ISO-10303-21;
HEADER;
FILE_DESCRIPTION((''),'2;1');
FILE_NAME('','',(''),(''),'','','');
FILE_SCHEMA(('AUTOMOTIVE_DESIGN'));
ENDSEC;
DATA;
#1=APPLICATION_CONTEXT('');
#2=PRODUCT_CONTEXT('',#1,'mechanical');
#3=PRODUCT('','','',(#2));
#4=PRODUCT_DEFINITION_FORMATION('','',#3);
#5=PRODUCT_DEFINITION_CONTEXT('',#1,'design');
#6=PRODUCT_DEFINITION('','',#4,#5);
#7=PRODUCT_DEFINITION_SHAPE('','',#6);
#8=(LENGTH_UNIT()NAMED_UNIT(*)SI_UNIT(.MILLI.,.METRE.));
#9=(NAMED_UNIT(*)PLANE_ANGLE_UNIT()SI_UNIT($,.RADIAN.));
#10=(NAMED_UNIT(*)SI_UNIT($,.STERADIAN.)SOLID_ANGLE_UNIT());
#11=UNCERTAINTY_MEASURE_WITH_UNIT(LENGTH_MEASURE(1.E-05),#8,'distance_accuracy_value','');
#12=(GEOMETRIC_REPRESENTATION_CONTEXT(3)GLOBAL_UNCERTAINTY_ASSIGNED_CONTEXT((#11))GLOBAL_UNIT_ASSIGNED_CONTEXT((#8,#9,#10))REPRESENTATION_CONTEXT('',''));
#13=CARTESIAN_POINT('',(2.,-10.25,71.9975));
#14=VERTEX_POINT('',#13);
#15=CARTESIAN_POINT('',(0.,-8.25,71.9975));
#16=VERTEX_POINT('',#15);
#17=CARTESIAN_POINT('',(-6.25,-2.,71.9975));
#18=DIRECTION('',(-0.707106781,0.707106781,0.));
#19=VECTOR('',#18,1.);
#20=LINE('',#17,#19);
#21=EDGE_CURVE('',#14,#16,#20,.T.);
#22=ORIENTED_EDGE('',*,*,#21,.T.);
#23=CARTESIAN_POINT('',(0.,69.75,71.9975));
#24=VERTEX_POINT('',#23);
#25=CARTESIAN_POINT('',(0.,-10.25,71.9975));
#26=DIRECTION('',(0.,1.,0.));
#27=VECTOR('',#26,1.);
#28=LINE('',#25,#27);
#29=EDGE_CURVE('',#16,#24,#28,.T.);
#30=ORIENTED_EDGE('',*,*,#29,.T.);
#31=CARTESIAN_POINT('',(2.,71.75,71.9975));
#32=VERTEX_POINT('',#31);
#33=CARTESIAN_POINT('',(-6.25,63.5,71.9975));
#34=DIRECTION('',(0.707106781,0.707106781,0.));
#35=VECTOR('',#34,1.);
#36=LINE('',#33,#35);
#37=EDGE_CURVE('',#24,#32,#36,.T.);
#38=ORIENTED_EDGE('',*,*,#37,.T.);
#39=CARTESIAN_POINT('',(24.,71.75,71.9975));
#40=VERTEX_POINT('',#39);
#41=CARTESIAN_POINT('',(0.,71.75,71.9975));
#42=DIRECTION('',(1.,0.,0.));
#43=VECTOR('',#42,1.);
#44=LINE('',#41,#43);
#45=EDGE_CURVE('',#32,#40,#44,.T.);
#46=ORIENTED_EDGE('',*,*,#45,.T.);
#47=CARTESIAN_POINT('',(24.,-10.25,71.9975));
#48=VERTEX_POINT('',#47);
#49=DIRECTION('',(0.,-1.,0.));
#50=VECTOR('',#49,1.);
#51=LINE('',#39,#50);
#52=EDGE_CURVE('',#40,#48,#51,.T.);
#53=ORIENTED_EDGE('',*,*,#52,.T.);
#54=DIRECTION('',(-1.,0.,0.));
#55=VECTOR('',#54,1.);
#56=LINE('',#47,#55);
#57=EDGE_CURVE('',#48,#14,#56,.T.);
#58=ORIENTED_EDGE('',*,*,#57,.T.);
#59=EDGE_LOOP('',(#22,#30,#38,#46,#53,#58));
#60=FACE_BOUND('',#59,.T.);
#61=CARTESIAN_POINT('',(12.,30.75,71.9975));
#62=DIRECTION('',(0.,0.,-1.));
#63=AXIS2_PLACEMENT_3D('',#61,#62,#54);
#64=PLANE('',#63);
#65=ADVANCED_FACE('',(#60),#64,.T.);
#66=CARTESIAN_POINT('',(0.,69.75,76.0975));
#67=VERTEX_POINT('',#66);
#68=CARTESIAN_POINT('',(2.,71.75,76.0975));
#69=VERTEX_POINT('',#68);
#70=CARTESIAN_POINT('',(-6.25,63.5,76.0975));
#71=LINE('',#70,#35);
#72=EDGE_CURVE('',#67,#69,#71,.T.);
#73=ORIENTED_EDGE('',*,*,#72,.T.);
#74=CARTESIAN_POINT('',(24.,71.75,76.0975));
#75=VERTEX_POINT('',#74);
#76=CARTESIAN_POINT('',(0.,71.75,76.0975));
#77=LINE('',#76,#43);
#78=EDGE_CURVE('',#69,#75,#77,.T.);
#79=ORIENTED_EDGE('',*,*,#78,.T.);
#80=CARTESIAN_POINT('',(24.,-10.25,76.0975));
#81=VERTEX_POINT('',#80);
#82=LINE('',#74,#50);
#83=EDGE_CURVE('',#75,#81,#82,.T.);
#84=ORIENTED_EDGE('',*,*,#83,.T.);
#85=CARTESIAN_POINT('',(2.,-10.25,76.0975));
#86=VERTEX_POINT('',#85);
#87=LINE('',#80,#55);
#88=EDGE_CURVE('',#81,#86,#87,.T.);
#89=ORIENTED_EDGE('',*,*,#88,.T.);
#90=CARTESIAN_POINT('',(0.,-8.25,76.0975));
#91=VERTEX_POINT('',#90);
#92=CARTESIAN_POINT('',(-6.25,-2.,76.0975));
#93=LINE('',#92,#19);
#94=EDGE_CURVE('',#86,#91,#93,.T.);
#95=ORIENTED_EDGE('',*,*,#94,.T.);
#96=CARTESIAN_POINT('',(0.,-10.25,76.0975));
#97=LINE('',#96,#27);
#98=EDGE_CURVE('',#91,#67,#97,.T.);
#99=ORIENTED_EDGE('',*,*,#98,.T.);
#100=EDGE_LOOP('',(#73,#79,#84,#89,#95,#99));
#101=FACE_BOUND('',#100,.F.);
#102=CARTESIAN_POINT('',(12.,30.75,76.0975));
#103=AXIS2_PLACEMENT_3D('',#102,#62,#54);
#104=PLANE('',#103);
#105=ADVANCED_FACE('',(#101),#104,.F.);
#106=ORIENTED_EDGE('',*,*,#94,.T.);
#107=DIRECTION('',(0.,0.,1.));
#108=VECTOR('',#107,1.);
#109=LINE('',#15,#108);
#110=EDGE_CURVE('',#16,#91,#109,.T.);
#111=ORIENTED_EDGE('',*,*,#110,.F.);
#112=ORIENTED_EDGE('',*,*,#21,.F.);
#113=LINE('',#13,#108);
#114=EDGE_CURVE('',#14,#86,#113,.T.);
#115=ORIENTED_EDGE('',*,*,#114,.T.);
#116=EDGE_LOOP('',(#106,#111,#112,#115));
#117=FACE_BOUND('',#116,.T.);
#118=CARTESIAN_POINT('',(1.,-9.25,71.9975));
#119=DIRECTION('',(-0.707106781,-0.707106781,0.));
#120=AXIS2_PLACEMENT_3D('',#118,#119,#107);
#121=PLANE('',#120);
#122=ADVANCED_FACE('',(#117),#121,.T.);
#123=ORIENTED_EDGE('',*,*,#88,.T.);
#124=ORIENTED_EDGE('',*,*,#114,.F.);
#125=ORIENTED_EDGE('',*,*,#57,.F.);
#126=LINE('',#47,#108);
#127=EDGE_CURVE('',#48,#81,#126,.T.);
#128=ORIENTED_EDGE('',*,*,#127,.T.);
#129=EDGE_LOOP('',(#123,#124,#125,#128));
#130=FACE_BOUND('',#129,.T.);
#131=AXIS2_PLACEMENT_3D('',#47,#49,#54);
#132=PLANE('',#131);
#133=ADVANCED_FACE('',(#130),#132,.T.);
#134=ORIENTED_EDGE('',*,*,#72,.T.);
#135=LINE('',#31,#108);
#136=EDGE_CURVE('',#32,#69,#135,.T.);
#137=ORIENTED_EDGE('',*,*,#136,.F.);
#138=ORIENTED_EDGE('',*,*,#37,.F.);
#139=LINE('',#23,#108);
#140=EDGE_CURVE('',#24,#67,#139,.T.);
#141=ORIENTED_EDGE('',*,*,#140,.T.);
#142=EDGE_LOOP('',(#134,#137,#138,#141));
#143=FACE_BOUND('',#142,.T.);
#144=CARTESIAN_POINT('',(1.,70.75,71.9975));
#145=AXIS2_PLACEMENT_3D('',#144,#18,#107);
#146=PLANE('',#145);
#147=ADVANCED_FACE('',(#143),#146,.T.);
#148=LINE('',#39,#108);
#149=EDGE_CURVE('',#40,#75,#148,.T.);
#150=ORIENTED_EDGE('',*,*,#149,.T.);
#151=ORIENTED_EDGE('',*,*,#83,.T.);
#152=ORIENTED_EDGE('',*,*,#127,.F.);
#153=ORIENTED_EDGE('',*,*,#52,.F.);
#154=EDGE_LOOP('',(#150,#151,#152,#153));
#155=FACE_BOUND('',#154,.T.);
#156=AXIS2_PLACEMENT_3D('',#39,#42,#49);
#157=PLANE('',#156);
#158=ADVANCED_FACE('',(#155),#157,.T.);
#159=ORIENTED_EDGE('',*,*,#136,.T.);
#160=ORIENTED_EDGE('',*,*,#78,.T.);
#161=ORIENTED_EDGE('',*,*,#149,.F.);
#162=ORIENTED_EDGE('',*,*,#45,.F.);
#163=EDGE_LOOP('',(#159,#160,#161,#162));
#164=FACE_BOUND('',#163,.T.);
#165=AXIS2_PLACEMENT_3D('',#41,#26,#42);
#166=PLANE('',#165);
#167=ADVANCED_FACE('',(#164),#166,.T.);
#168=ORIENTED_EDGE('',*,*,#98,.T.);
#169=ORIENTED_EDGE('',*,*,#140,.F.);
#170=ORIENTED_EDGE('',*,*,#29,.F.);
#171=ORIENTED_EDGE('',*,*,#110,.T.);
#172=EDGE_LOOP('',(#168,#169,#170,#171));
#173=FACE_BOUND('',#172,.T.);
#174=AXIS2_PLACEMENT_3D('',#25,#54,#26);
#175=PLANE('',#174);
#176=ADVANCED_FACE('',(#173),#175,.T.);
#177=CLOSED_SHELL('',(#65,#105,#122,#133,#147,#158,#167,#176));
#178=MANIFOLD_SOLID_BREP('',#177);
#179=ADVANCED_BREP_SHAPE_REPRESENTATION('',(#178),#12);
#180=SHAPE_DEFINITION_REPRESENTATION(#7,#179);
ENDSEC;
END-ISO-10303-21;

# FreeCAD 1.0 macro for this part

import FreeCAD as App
import Part
import Sketcher
from FreeCAD import Vector
Q = App.Units.Quantity


def edges_at(feature, points):
    """Names of the edges that pass closest to the given points."""
    edges = feature.Shape.Edges
    near = lambda p: min(range(len(edges)), key=lambda i: edges[i].distToShape(Part.Vertex(*p))[0])
    return sorted({f"Edge{near(p) + 1}" for p in points})

doc = App.newDocument("Part")
params = doc.addObject("Spreadsheet::Sheet", "Params")
for row, (alias, value) in enumerate([
    ("sketch1_width", "24 mm"),
    ("sketch1_height", "82 mm"),
    ("pad1_length", "4.1 mm"),
    ("chamfer_size", "2 mm"),
], start=1):
    params.set(f"A{row}", alias)
    params.set(f"B{row}", "=" + value)
    params.setAlias(f"B{row}", alias)

body = doc.addObject("PartDesign::Body", "Body")

# Sketch on XY plane
sketch1 = body.newObject("Sketcher::SketchObject", "Sketch")
sketch1.AttachmentSupport = (doc.getObject("XY_Plane"), [""])
sketch1.MapMode = "FlatFace"
sketch1.AttachmentOffset = App.Placement(Vector(0, 0, 71.9975), App.Rotation())
sketch1.addGeometry(Part.LineSegment(Vector(24, -10.25, 0), Vector(24, 71.75, 0)), False)
sketch1.addGeometry(Part.LineSegment(Vector(24, 71.75, 0), Vector(0, 71.75, 0)), False)
sketch1.addGeometry(Part.LineSegment(Vector(0, 71.75, 0), Vector(0, -10.25, 0)), False)
sketch1.addGeometry(Part.LineSegment(Vector(0, -10.25, 0), Vector(24, -10.25, 0)), False)
sketch1.addConstraint(Sketcher.Constraint("Coincident", 0, 2, 1, 1))
sketch1.addConstraint(Sketcher.Constraint("Coincident", 1, 2, 2, 1))
sketch1.addConstraint(Sketcher.Constraint("Coincident", 2, 2, 3, 1))
sketch1.addConstraint(Sketcher.Constraint("Coincident", 3, 2, 0, 1))
sketch1.addConstraint(Sketcher.Constraint("Vertical", 0))
sketch1.addConstraint(Sketcher.Constraint("Horizontal", 1))
sketch1.addConstraint(Sketcher.Constraint("Vertical", 2))
sketch1.addConstraint(Sketcher.Constraint("Horizontal", 3))
sketch1.addConstraint(Sketcher.Constraint("PointOnObject", 1, 2, -2))
sketch1.addConstraint(Sketcher.Constraint("DistanceX", 1, 2, 1, 1, Q("24 mm")))
sketch1.addConstraint(Sketcher.Constraint("DistanceY", 0, 1, 0, 2, Q("82 mm")))
sketch1.addConstraint(Sketcher.Constraint("DistanceY", -1, 1, 0, 2, Q("71.75 mm")))
sketch1.setExpression("Constraints[9]", "Params.sketch1_width")
sketch1.setExpression("Constraints[10]", "Params.sketch1_height")
pad1 = body.newObject("PartDesign::Pad", "Pad")
pad1.Profile = sketch1
pad1.setExpression("Length", "Params.pad1_length")
doc.recompute()

chamfer = body.newObject("PartDesign::Chamfer", "Chamfer")
chamfer.Base = (pad1, edges_at(pad1, [(0, -10.25, 74.047), (0, 71.75, 74.047)]))
chamfer.setExpression("Size", "Params.chamfer_size")

doc.recompute()
